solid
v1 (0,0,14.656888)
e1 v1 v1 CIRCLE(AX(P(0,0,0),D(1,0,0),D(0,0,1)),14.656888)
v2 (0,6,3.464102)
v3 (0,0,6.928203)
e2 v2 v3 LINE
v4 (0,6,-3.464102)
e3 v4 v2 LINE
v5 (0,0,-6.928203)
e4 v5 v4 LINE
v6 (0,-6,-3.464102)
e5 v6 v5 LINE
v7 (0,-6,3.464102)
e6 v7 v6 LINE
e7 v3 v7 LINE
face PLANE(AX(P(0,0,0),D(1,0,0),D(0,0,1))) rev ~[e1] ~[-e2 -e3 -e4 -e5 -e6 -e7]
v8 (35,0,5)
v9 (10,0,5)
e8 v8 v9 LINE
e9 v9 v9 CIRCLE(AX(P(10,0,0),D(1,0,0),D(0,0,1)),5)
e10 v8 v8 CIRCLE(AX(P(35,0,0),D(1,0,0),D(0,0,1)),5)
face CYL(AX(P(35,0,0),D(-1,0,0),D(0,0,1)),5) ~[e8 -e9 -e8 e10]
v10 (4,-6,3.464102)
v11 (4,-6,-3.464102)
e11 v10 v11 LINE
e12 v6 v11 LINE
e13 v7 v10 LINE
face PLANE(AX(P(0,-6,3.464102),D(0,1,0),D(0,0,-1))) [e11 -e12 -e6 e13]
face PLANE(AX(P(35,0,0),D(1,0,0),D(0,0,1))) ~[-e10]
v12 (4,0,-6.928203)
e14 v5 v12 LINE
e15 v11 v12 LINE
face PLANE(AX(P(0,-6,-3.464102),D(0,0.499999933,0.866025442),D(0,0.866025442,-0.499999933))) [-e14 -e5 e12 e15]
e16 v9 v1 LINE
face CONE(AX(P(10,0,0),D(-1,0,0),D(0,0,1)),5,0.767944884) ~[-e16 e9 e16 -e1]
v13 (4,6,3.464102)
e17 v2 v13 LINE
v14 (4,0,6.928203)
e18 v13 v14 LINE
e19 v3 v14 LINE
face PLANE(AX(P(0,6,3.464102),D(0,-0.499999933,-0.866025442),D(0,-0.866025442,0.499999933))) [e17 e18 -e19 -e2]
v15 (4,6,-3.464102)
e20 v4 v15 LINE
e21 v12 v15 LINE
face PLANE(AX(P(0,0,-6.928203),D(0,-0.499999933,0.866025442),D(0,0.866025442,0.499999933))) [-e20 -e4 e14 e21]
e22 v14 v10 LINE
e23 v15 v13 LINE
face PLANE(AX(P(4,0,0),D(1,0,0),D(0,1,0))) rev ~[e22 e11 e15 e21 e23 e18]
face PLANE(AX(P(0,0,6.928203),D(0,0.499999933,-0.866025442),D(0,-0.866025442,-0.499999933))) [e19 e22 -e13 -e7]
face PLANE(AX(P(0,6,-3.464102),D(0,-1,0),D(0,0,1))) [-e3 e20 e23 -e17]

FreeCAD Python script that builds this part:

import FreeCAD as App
import Part
import Sketcher
Q = App.Units.Quantity

doc = App.newDocument("Part")
body = doc.addObject("PartDesign::Body", "Body")

# Sketch on XZ plane
sketch1 = body.newObject("Sketcher::SketchObject", "Sketch")
sketch1.AttachmentSupport = (doc.getObject("XZ_Plane"), [""])
sketch1.MapMode = "FlatFace"
sketch1.addGeometry([
    Part.LineSegment(App.Vector(0, 14.656888, 0), App.Vector(0, 0, 0)),  # 0
    Part.LineSegment(App.Vector(0, 0, 0), App.Vector(35, 0, 0)),  # 1
    Part.LineSegment(App.Vector(35, 0, 0), App.Vector(35, 5, 0)),  # 2
    Part.LineSegment(App.Vector(35, 5, 0), App.Vector(10, 5, 0)),  # 3
    Part.LineSegment(App.Vector(10, 5, 0), App.Vector(0, 14.656888, 0)),  # 4
], False)
sketch1.addConstraint([
    Sketcher.Constraint("Coincident", 0, 2, 1, 1),
    Sketcher.Constraint("Coincident", 1, 2, 2, 1),
    Sketcher.Constraint("Coincident", 2, 2, 3, 1),
    Sketcher.Constraint("Coincident", 3, 2, 4, 1),
    Sketcher.Constraint("Coincident", 4, 2, 0, 1),
    Sketcher.Constraint("Vertical", 0),
    Sketcher.Constraint("Horizontal", 1),
    Sketcher.Constraint("Vertical", 2),
    Sketcher.Constraint("Horizontal", 3),
    Sketcher.Constraint("Coincident", 0, 2, -1, 1),
    Sketcher.Constraint("DistanceX", 1, 1, 1, 2, 35.0),
    Sketcher.Constraint("DistanceX", 3, 2, 3, 1, 25.0),
    Sketcher.Constraint("DistanceY", 2, 1, 2, 2, 5.0),
    Sketcher.Constraint("Angle", 4, Q("135.999999 deg")),
])
revolution = body.newObject("PartDesign::Revolution", "Revolution")
revolution.Profile = sketch1
revolution.ReferenceAxis = (sketch1, ["H_Axis"])
revolution.Angle = 360

# Sketch on YZ plane
sketch2 = body.newObject("Sketcher::SketchObject", "Sketch001")
sketch2.AttachmentSupport = (doc.getObject("YZ_Plane"), [""])
sketch2.MapMode = "FlatFace"
sketch2.addGeometry([
    Part.LineSegment(App.Vector(0, 6.928203, 0), App.Vector(-6, 3.464102, 0)),  # 0
    Part.LineSegment(App.Vector(-6, 3.464102, 0), App.Vector(-6, -3.464102, 0)),  # 1
    Part.LineSegment(App.Vector(-6, -3.464102, 0), App.Vector(0, -6.928203, 0)),  # 2
    Part.LineSegment(App.Vector(0, -6.928203, 0), App.Vector(6, -3.464102, 0)),  # 3
    Part.LineSegment(App.Vector(6, -3.464102, 0), App.Vector(6, 3.464102, 0)),  # 4
    Part.LineSegment(App.Vector(6, 3.464102, 0), App.Vector(0, 6.928203, 0)),  # 5
], False)
sketch2.addConstraint([
    Sketcher.Constraint("Coincident", 0, 2, 1, 1),
    Sketcher.Constraint("Coincident", 1, 2, 2, 1),
    Sketcher.Constraint("Coincident", 2, 2, 3, 1),
    Sketcher.Constraint("Coincident", 3, 2, 4, 1),
    Sketcher.Constraint("Coincident", 4, 2, 5, 1),
    Sketcher.Constraint("Coincident", 5, 2, 0, 1),
    Sketcher.Constraint("Vertical", 1),
    Sketcher.Constraint("Vertical", 4),
    Sketcher.Constraint("Symmetric", 0, 2, 3, 2, -1, 1),
    Sketcher.Constraint("Symmetric", 2, 2, 5, 2, -1, 1),
    Sketcher.Constraint("PointOnObject", 2, 2, -2),
    Sketcher.Constraint("Parallel", 2, 5),
    Sketcher.Constraint("Horizontal", 1, 2, 3, 2),
    Sketcher.Constraint("Angle", 0, Q("-150.000004 deg")),
    Sketcher.Constraint("DistanceX", 0, 2, -1, 1, 6.0),
    Sketcher.Constraint("DistanceY", -1, 1, 0, 2, 3.464102),
])
pocket1 = body.newObject("PartDesign::Pocket", "Pocket")
pocket1.Profile = sketch2
pocket1.Length = 4
pocket1.Reversed = True

doc.recompute()
